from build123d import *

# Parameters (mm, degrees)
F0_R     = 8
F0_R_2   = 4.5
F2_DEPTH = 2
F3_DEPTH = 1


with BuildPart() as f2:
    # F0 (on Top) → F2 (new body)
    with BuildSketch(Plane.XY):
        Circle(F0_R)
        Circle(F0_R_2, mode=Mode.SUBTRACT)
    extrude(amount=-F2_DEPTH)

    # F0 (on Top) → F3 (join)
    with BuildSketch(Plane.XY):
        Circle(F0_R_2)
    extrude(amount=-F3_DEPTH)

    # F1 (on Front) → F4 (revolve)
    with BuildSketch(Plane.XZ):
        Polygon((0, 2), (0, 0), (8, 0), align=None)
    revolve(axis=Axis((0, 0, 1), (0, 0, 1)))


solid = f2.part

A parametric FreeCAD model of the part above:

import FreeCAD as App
import Part
import Sketcher
Q = App.Units.Quantity


def add_polygon(sketch, points):
    """Adds a closed chain of lines whose ends are joined by coincident constraints."""
    first, n = sketch.GeometryCount, len(points)
    for a, b in zip(points, points[1:] + points[:1]):
        sketch.addGeometry(Part.LineSegment(App.Vector(*a, 0), App.Vector(*b, 0)), False)
    for i in range(n):
        sketch.addConstraint(Sketcher.Constraint("Coincident", first + i, 2, first + (i + 1) % n, 1))

doc = App.newDocument("Part")
params = doc.addObject("Spreadsheet::Sheet", "Params")
for row, (alias, value) in enumerate([
    ("sketch1_diameter", "16 mm"),
    ("sketch1_diameter2", "9 mm"),
    ("pad1_length", "2 mm"),
    ("sketch2_diameter", "9 mm"),
    ("pad2_length", "1 mm"),
    ("sketch3_width", "8 mm"),
    ("sketch3_height", "2 mm"),
    ("revolution_angle", "360 deg"),
], start=1):
    params.set(f"A{row}", alias)
    params.set(f"B{row}", "=" + value)
    params.setAlias(f"B{row}", alias)

body = doc.addObject("PartDesign::Body", "Body")

sketch1 = body.newObject("Sketcher::SketchObject", "Sketch")
sketch1.AttachmentSupport = (doc.getObject("XY_Plane"), [""])
sketch1.MapMode = "FlatFace"
sketch1.addGeometry([
    Part.Circle(App.Vector(0, 0, 0), App.Vector(0, 0, 1), 8),
    Part.Circle(App.Vector(0, 0, 0), App.Vector(0, 0, 1), 4.5),
], False)
sketch1.addConstraint([
    Sketcher.Constraint("Coincident", 0, 3, -1, 1),
    Sketcher.Constraint("Coincident", 1, 3, -1, 1),
    Sketcher.Constraint("Diameter", 0, Q("16 mm")),
    Sketcher.Constraint("Diameter", 1, Q("9 mm")),
])
sketch1.setExpression("Constraints[2]", "Params.sketch1_diameter")
sketch1.setExpression("Constraints[3]", "Params.sketch1_diameter2")
pad1 = body.newObject("PartDesign::Pad", "Pad")
pad1.Profile = sketch1
pad1.setExpression("Length", "Params.pad1_length")
pad1.Reversed = True

sketch2 = body.newObject("Sketcher::SketchObject", "Sketch001")
sketch2.AttachmentSupport = (doc.getObject("XY_Plane"), [""])
sketch2.MapMode = "FlatFace"
sketch2.addGeometry(Part.Circle(App.Vector(0, 0, 0), App.Vector(0, 0, 1), 4.5), False)
sketch2.addConstraint([
    Sketcher.Constraint("Coincident", 0, 3, -1, 1),
    Sketcher.Constraint("Diameter", 0, Q("9 mm")),
])
sketch2.setExpression("Constraints[1]", "Params.sketch2_diameter")
pad2 = body.newObject("PartDesign::Pad", "Pad001")
pad2.Profile = sketch2
pad2.setExpression("Length", "Params.pad2_length")
pad2.Reversed = True

sketch3 = body.newObject("Sketcher::SketchObject", "Sketch002")
sketch3.AttachmentSupport = (doc.getObject("XZ_Plane"), [""])
sketch3.MapMode = "FlatFace"
add_polygon(sketch3, [(0, 2), (0, 0), (8, 0)])
sketch3.addConstraint([
    Sketcher.Constraint("Vertical", 0),
    Sketcher.Constraint("Horizontal", 1),
    Sketcher.Constraint("Coincident", 0, 2, -1, 1),
    Sketcher.Constraint("DistanceX", 1, 1, 1, 2, Q("8 mm")),
    Sketcher.Constraint("DistanceY", 0, 2, 0, 1, Q("2 mm")),
])
sketch3.setExpression("Constraints[6]", "Params.sketch3_width")
sketch3.setExpression("Constraints[7]", "Params.sketch3_height")
revolution = body.newObject("PartDesign::Revolution", "Revolution")
revolution.Profile = sketch3
revolution.ReferenceAxis = (sketch3, ["V_Axis"])
revolution.setExpression("Angle", "Params.revolution_angle")

doc.recompute()
